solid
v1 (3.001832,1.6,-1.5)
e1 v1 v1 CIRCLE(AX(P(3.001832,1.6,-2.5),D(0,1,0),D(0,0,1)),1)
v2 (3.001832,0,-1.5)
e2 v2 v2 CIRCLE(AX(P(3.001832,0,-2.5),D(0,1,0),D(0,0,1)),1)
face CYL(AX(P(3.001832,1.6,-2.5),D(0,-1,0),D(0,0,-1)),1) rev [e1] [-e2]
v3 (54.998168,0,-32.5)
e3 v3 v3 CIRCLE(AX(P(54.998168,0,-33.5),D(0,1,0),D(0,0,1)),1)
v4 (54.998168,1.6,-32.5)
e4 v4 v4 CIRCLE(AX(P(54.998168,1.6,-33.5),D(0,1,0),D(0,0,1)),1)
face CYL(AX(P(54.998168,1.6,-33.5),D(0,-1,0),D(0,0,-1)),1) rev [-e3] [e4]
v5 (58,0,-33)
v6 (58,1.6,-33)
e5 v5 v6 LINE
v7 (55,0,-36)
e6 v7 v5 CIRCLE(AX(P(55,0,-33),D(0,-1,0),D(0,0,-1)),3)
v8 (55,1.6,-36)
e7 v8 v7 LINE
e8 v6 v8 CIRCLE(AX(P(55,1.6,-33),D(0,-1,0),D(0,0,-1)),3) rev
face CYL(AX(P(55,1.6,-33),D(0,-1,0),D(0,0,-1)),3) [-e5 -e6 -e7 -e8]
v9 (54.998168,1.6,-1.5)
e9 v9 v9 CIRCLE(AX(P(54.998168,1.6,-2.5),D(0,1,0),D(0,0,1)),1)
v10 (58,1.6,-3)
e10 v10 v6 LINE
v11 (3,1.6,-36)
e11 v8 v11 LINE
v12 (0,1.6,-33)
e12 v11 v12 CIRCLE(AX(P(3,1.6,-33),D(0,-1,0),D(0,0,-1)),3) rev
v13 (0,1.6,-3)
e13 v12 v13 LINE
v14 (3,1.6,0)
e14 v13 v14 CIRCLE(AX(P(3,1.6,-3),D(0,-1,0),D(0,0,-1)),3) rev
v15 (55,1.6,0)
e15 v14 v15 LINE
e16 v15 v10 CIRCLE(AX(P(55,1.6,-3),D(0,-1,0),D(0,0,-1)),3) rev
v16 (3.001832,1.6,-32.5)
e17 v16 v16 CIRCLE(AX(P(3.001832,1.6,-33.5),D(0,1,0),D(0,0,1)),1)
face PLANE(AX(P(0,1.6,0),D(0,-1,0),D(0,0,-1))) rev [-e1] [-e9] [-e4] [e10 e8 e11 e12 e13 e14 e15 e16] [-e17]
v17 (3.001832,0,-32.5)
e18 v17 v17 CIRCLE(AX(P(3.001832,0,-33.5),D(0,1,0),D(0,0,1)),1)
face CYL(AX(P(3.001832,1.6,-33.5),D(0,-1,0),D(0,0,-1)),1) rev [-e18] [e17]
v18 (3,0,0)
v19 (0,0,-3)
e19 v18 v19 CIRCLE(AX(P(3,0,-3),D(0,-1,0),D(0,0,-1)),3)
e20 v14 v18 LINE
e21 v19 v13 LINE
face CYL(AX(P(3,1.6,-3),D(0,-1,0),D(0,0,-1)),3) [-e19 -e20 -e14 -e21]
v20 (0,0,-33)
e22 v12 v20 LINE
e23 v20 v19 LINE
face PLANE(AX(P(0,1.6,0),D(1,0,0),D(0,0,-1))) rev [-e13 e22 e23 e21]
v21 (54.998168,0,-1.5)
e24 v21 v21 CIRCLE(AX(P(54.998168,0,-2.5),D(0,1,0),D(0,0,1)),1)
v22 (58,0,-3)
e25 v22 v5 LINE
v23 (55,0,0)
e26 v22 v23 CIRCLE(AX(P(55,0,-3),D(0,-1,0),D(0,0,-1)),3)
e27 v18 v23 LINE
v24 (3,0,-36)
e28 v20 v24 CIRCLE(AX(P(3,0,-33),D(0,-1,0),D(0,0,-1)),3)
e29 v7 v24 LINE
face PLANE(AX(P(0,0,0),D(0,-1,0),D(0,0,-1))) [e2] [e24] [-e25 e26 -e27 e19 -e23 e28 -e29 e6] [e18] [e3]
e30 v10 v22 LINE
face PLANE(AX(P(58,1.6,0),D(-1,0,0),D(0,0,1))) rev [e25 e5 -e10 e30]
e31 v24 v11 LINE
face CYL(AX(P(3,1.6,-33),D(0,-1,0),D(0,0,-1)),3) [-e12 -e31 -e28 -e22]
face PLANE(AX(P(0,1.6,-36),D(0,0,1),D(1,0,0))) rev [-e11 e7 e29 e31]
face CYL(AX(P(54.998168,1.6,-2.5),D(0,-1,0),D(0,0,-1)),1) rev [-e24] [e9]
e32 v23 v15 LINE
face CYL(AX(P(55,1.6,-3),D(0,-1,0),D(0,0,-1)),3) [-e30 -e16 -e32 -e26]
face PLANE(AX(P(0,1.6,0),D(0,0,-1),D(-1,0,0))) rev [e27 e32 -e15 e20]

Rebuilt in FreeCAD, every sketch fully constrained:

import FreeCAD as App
import Part
import Sketcher

V = App.Vector
Q = App.Units.Quantity


def edges_at(feature, points):
    """Names of the edges that pass closest to the given points."""
    edges = feature.Shape.Edges
    near = lambda p: min(range(len(edges)), key=lambda i: edges[i].distToShape(Part.Vertex(*p))[0])
    return sorted({f"Edge{near(p) + 1}" for p in points})


def add_polygon(sketch, points):
    """Adds a closed chain of lines whose ends are joined by coincident constraints."""
    first, n = sketch.GeometryCount, len(points)
    for a, b in zip(points, points[1:] + points[:1]):
        sketch.addGeometry(Part.LineSegment(App.Vector(*a, 0), App.Vector(*b, 0)), False)
    for i in range(n):
        sketch.addConstraint(Sketcher.Constraint("Coincident", first + i, 2, first + (i + 1) % n, 1))

doc = App.newDocument("Part")
body = doc.addObject("PartDesign::Body", "Body")

# Sketch on XZ plane
sketch1 = doc.addObject("Sketcher::SketchObject", "Sketch")
body.addObject(sketch1)
sketch1.AttachmentSupport = (doc.XZ_Plane, [""])
sketch1.MapMode = "FlatFace"
add_polygon(sketch1, [(0, -36), (0, 0), (58, 0), (58, -36)])  # lines 0-3
sketch1.addGeometry(Part.Circle(V(3, -2.5, 0), V(0, 0, 1), 1), False)  # 4
sketch1.addGeometry(Part.Circle(V(55, -2.5, 0), V(0, 0, 1), 1), False)  # 5
sketch1.addGeometry(Part.Circle(V(3, -33.5, 0), V(0, 0, 1), 1), False)  # 6
sketch1.addGeometry(Part.Circle(V(55, -33.5, 0), V(0, 0, 1), 1), False)  # 7
sketch1.addConstraint([
    Sketcher.Constraint("Vertical", 0),
    Sketcher.Constraint("Horizontal", 1),
    Sketcher.Constraint("Vertical", 2),
    Sketcher.Constraint("Horizontal", 3),
    Sketcher.Constraint("Coincident", 0, 2, -1, 1),
    Sketcher.Constraint("Equal", 4, 5),
    Sketcher.Constraint("Equal", 5, 6),
    Sketcher.Constraint("Equal", 6, 7),
    Sketcher.Constraint("Horizontal", 4, 3, 5, 3),
    Sketcher.Constraint("Horizontal", 6, 3, 7, 3),
    Sketcher.Constraint("Vertical", 4, 3, 6, 3),
    Sketcher.Constraint("Vertical", 5, 3, 7, 3),
    Sketcher.Constraint("Diameter", 4, Q("2 mm")),
    Sketcher.Constraint("DistanceX", 1, 1, 1, 2, Q("58 mm")),
    Sketcher.Constraint("DistanceY", 0, 1, 0, 2, Q("36 mm")),
    Sketcher.Constraint("DistanceY", 6, 3, 4, 3, Q("31 mm")),
    Sketcher.Constraint("DistanceY", 4, 3, -1, 1, Q("2.5 mm")),
    Sketcher.Constraint("DistanceX", -1, 1, 4, 3, Q("3.001832 mm")),
    Sketcher.Constraint("DistanceX", -1, 1, 5, 3, Q("54.998168 mm")),
])
pad1 = doc.addObject("PartDesign::Pad", "Pad")
body.addObject(pad1)
pad1.Profile = sketch1
pad1.Length = 1.6
pad1.Reversed = True
doc.recompute()

fillet = doc.addObject("PartDesign::Fillet", "Fillet")
body.addObject(fillet)
fillet.Base = (pad1, edges_at(pad1, [
    (0, 0.8, -36),
    (58, 0.8, -36),
    (58, 0.8, 0),
    (0, 0.8, 0),
]))
fillet.Radius = 3

doc.recompute()
